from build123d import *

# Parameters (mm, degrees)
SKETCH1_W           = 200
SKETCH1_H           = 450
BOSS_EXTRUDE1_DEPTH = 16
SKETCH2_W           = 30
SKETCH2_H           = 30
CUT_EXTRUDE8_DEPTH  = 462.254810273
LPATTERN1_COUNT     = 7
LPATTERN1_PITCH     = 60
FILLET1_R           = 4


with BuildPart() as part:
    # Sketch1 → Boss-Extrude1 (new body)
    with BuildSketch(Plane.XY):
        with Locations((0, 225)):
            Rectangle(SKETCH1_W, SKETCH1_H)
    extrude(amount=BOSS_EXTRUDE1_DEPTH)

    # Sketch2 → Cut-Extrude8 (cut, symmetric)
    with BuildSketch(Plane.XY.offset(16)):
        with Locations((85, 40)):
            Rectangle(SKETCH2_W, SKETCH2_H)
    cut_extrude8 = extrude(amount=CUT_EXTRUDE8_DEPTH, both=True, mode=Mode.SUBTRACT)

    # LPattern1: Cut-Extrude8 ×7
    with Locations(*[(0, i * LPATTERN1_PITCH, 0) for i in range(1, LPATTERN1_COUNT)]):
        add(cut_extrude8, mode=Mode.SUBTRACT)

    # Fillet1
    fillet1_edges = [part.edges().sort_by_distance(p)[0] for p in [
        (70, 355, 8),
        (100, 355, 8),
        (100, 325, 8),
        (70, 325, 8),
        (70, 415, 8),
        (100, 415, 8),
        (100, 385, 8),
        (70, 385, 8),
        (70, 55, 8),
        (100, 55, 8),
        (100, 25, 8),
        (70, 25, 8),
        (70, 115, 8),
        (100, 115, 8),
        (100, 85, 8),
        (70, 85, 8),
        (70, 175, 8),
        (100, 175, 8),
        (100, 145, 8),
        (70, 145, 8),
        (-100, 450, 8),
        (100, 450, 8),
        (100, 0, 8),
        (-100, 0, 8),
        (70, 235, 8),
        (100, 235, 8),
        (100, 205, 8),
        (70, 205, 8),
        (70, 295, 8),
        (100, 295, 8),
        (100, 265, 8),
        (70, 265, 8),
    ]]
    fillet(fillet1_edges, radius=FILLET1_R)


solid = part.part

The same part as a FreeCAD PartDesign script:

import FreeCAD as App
import Part
import Sketcher

V = App.Vector
Q = App.Units.Quantity


def edges_at(feature, points):
    """Names of the edges that pass closest to the given points."""
    edges = feature.Shape.Edges
    near = lambda p: min(range(len(edges)), key=lambda i: edges[i].distToShape(Part.Vertex(*p))[0])
    return sorted({f"Edge{near(p) + 1}" for p in points})

doc = App.newDocument("Part")
body = doc.addObject("PartDesign::Body", "Body")

sketch1 = body.newObject("Sketcher::SketchObject", "Sketch")
sketch1.AttachmentSupport = (doc.getObject("XY_Plane"), [""])
sketch1.MapMode = "FlatFace"
sketch1.addGeometry(Part.LineSegment(V(-100, 450, 0), V(-100, 0, 0)), False)
sketch1.addGeometry(Part.LineSegment(V(-100, 0, 0), V(100, 0, 0)), False)
sketch1.addGeometry(Part.LineSegment(V(100, 0, 0), V(100, 450, 0)), False)
sketch1.addGeometry(Part.LineSegment(V(100, 450, 0), V(-100, 450, 0)), False)
sketch1.addConstraint(Sketcher.Constraint("Coincident", 0, 2, 1, 1))
sketch1.addConstraint(Sketcher.Constraint("Coincident", 1, 2, 2, 1))
sketch1.addConstraint(Sketcher.Constraint("Coincident", 2, 2, 3, 1))
sketch1.addConstraint(Sketcher.Constraint("Coincident", 3, 2, 0, 1))
sketch1.addConstraint(Sketcher.Constraint("Vertical", 0))
sketch1.addConstraint(Sketcher.Constraint("Horizontal", 1))
sketch1.addConstraint(Sketcher.Constraint("Vertical", 2))
sketch1.addConstraint(Sketcher.Constraint("Horizontal", 3))
sketch1.addConstraint(Sketcher.Constraint("Symmetric", 0, 2, 1, 2, -1, 1))
sketch1.addConstraint(Sketcher.Constraint("DistanceX", 1, 1, 1, 2, Q("200 mm")))
sketch1.addConstraint(Sketcher.Constraint("DistanceY", 0, 2, 0, 1, Q("450 mm")))
pad1 = body.newObject("PartDesign::Pad", "Pad")
pad1.Profile = sketch1
pad1.Length = 16

sketch2 = body.newObject("Sketcher::SketchObject", "Sketch001")
sketch2.AttachmentSupport = (doc.getObject("XY_Plane"), [""])
sketch2.MapMode = "FlatFace"
sketch2.AttachmentOffset = App.Placement(V(0, 0, 16), App.Rotation())
sketch2.addGeometry(Part.LineSegment(V(70, 55, 0), V(70, 25, 0)), False)
sketch2.addGeometry(Part.LineSegment(V(70, 25, 0), V(100, 25, 0)), False)
sketch2.addGeometry(Part.LineSegment(V(100, 25, 0), V(100, 55, 0)), False)
sketch2.addGeometry(Part.LineSegment(V(100, 55, 0), V(70, 55, 0)), False)
sketch2.addConstraint(Sketcher.Constraint("Coincident", 0, 2, 1, 1))
sketch2.addConstraint(Sketcher.Constraint("Coincident", 1, 2, 2, 1))
sketch2.addConstraint(Sketcher.Constraint("Coincident", 2, 2, 3, 1))
sketch2.addConstraint(Sketcher.Constraint("Coincident", 3, 2, 0, 1))
sketch2.addConstraint(Sketcher.Constraint("Vertical", 0))
sketch2.addConstraint(Sketcher.Constraint("Horizontal", 1))
sketch2.addConstraint(Sketcher.Constraint("Vertical", 2))
sketch2.addConstraint(Sketcher.Constraint("Horizontal", 3))
sketch2.addConstraint(Sketcher.Constraint("Equal", 3, 0))
sketch2.addConstraint(Sketcher.Constraint("DistanceX", 1, 1, 1, 2, Q("30 mm")))
sketch2.addConstraint(Sketcher.Constraint("DistanceX", -1, 1, 0, 2, Q("70 mm")))
sketch2.addConstraint(Sketcher.Constraint("DistanceY", -1, 1, 0, 2, Q("25 mm")))
pocket1 = body.newObject("PartDesign::Pocket", "Pocket")
pocket1.Profile = sketch2
pocket1.Length = 924.509621
pocket1.Midplane = True
doc.recompute()

linearpattern = body.newObject("PartDesign::LinearPattern", "LinearPattern")
linearpattern.Originals = [pocket1]
linearpattern.Direction = (doc.getObject("Y_Axis"), [""])
linearpattern.Mode = "offset"
linearpattern.Offset = 60
linearpattern.Occurrences = 7
body.Tip = linearpattern
doc.recompute()

fillet = body.newObject("PartDesign::Fillet", "Fillet")
fillet.Base = (linearpattern, edges_at(linearpattern, [
    (70, 355, 8),
    (100, 355, 8),
    (100, 325, 8),
    (70, 325, 8),
    (70, 415, 8),
    (100, 415, 8),
    (100, 385, 8),
    (70, 385, 8),
    (70, 55, 8),
    (100, 55, 8),
    (100, 25, 8),
    (70, 25, 8),
    (70, 115, 8),
    (100, 115, 8),
    (100, 85, 8),
    (70, 85, 8),
    (70, 175, 8),
    (100, 175, 8),
    (100, 145, 8),
    (70, 145, 8),
    (-100, 450, 8),
    (100, 450, 8),
    (100, 0, 8),
    (-100, 0, 8),
    (70, 235, 8),
    (100, 235, 8),
    (100, 205, 8),
    (70, 205, 8),
    (70, 295, 8),
    (100, 295, 8),
    (100, 265, 8),
    (70, 265, 8),
]))
fillet.Radius = 4

doc.recompute()
